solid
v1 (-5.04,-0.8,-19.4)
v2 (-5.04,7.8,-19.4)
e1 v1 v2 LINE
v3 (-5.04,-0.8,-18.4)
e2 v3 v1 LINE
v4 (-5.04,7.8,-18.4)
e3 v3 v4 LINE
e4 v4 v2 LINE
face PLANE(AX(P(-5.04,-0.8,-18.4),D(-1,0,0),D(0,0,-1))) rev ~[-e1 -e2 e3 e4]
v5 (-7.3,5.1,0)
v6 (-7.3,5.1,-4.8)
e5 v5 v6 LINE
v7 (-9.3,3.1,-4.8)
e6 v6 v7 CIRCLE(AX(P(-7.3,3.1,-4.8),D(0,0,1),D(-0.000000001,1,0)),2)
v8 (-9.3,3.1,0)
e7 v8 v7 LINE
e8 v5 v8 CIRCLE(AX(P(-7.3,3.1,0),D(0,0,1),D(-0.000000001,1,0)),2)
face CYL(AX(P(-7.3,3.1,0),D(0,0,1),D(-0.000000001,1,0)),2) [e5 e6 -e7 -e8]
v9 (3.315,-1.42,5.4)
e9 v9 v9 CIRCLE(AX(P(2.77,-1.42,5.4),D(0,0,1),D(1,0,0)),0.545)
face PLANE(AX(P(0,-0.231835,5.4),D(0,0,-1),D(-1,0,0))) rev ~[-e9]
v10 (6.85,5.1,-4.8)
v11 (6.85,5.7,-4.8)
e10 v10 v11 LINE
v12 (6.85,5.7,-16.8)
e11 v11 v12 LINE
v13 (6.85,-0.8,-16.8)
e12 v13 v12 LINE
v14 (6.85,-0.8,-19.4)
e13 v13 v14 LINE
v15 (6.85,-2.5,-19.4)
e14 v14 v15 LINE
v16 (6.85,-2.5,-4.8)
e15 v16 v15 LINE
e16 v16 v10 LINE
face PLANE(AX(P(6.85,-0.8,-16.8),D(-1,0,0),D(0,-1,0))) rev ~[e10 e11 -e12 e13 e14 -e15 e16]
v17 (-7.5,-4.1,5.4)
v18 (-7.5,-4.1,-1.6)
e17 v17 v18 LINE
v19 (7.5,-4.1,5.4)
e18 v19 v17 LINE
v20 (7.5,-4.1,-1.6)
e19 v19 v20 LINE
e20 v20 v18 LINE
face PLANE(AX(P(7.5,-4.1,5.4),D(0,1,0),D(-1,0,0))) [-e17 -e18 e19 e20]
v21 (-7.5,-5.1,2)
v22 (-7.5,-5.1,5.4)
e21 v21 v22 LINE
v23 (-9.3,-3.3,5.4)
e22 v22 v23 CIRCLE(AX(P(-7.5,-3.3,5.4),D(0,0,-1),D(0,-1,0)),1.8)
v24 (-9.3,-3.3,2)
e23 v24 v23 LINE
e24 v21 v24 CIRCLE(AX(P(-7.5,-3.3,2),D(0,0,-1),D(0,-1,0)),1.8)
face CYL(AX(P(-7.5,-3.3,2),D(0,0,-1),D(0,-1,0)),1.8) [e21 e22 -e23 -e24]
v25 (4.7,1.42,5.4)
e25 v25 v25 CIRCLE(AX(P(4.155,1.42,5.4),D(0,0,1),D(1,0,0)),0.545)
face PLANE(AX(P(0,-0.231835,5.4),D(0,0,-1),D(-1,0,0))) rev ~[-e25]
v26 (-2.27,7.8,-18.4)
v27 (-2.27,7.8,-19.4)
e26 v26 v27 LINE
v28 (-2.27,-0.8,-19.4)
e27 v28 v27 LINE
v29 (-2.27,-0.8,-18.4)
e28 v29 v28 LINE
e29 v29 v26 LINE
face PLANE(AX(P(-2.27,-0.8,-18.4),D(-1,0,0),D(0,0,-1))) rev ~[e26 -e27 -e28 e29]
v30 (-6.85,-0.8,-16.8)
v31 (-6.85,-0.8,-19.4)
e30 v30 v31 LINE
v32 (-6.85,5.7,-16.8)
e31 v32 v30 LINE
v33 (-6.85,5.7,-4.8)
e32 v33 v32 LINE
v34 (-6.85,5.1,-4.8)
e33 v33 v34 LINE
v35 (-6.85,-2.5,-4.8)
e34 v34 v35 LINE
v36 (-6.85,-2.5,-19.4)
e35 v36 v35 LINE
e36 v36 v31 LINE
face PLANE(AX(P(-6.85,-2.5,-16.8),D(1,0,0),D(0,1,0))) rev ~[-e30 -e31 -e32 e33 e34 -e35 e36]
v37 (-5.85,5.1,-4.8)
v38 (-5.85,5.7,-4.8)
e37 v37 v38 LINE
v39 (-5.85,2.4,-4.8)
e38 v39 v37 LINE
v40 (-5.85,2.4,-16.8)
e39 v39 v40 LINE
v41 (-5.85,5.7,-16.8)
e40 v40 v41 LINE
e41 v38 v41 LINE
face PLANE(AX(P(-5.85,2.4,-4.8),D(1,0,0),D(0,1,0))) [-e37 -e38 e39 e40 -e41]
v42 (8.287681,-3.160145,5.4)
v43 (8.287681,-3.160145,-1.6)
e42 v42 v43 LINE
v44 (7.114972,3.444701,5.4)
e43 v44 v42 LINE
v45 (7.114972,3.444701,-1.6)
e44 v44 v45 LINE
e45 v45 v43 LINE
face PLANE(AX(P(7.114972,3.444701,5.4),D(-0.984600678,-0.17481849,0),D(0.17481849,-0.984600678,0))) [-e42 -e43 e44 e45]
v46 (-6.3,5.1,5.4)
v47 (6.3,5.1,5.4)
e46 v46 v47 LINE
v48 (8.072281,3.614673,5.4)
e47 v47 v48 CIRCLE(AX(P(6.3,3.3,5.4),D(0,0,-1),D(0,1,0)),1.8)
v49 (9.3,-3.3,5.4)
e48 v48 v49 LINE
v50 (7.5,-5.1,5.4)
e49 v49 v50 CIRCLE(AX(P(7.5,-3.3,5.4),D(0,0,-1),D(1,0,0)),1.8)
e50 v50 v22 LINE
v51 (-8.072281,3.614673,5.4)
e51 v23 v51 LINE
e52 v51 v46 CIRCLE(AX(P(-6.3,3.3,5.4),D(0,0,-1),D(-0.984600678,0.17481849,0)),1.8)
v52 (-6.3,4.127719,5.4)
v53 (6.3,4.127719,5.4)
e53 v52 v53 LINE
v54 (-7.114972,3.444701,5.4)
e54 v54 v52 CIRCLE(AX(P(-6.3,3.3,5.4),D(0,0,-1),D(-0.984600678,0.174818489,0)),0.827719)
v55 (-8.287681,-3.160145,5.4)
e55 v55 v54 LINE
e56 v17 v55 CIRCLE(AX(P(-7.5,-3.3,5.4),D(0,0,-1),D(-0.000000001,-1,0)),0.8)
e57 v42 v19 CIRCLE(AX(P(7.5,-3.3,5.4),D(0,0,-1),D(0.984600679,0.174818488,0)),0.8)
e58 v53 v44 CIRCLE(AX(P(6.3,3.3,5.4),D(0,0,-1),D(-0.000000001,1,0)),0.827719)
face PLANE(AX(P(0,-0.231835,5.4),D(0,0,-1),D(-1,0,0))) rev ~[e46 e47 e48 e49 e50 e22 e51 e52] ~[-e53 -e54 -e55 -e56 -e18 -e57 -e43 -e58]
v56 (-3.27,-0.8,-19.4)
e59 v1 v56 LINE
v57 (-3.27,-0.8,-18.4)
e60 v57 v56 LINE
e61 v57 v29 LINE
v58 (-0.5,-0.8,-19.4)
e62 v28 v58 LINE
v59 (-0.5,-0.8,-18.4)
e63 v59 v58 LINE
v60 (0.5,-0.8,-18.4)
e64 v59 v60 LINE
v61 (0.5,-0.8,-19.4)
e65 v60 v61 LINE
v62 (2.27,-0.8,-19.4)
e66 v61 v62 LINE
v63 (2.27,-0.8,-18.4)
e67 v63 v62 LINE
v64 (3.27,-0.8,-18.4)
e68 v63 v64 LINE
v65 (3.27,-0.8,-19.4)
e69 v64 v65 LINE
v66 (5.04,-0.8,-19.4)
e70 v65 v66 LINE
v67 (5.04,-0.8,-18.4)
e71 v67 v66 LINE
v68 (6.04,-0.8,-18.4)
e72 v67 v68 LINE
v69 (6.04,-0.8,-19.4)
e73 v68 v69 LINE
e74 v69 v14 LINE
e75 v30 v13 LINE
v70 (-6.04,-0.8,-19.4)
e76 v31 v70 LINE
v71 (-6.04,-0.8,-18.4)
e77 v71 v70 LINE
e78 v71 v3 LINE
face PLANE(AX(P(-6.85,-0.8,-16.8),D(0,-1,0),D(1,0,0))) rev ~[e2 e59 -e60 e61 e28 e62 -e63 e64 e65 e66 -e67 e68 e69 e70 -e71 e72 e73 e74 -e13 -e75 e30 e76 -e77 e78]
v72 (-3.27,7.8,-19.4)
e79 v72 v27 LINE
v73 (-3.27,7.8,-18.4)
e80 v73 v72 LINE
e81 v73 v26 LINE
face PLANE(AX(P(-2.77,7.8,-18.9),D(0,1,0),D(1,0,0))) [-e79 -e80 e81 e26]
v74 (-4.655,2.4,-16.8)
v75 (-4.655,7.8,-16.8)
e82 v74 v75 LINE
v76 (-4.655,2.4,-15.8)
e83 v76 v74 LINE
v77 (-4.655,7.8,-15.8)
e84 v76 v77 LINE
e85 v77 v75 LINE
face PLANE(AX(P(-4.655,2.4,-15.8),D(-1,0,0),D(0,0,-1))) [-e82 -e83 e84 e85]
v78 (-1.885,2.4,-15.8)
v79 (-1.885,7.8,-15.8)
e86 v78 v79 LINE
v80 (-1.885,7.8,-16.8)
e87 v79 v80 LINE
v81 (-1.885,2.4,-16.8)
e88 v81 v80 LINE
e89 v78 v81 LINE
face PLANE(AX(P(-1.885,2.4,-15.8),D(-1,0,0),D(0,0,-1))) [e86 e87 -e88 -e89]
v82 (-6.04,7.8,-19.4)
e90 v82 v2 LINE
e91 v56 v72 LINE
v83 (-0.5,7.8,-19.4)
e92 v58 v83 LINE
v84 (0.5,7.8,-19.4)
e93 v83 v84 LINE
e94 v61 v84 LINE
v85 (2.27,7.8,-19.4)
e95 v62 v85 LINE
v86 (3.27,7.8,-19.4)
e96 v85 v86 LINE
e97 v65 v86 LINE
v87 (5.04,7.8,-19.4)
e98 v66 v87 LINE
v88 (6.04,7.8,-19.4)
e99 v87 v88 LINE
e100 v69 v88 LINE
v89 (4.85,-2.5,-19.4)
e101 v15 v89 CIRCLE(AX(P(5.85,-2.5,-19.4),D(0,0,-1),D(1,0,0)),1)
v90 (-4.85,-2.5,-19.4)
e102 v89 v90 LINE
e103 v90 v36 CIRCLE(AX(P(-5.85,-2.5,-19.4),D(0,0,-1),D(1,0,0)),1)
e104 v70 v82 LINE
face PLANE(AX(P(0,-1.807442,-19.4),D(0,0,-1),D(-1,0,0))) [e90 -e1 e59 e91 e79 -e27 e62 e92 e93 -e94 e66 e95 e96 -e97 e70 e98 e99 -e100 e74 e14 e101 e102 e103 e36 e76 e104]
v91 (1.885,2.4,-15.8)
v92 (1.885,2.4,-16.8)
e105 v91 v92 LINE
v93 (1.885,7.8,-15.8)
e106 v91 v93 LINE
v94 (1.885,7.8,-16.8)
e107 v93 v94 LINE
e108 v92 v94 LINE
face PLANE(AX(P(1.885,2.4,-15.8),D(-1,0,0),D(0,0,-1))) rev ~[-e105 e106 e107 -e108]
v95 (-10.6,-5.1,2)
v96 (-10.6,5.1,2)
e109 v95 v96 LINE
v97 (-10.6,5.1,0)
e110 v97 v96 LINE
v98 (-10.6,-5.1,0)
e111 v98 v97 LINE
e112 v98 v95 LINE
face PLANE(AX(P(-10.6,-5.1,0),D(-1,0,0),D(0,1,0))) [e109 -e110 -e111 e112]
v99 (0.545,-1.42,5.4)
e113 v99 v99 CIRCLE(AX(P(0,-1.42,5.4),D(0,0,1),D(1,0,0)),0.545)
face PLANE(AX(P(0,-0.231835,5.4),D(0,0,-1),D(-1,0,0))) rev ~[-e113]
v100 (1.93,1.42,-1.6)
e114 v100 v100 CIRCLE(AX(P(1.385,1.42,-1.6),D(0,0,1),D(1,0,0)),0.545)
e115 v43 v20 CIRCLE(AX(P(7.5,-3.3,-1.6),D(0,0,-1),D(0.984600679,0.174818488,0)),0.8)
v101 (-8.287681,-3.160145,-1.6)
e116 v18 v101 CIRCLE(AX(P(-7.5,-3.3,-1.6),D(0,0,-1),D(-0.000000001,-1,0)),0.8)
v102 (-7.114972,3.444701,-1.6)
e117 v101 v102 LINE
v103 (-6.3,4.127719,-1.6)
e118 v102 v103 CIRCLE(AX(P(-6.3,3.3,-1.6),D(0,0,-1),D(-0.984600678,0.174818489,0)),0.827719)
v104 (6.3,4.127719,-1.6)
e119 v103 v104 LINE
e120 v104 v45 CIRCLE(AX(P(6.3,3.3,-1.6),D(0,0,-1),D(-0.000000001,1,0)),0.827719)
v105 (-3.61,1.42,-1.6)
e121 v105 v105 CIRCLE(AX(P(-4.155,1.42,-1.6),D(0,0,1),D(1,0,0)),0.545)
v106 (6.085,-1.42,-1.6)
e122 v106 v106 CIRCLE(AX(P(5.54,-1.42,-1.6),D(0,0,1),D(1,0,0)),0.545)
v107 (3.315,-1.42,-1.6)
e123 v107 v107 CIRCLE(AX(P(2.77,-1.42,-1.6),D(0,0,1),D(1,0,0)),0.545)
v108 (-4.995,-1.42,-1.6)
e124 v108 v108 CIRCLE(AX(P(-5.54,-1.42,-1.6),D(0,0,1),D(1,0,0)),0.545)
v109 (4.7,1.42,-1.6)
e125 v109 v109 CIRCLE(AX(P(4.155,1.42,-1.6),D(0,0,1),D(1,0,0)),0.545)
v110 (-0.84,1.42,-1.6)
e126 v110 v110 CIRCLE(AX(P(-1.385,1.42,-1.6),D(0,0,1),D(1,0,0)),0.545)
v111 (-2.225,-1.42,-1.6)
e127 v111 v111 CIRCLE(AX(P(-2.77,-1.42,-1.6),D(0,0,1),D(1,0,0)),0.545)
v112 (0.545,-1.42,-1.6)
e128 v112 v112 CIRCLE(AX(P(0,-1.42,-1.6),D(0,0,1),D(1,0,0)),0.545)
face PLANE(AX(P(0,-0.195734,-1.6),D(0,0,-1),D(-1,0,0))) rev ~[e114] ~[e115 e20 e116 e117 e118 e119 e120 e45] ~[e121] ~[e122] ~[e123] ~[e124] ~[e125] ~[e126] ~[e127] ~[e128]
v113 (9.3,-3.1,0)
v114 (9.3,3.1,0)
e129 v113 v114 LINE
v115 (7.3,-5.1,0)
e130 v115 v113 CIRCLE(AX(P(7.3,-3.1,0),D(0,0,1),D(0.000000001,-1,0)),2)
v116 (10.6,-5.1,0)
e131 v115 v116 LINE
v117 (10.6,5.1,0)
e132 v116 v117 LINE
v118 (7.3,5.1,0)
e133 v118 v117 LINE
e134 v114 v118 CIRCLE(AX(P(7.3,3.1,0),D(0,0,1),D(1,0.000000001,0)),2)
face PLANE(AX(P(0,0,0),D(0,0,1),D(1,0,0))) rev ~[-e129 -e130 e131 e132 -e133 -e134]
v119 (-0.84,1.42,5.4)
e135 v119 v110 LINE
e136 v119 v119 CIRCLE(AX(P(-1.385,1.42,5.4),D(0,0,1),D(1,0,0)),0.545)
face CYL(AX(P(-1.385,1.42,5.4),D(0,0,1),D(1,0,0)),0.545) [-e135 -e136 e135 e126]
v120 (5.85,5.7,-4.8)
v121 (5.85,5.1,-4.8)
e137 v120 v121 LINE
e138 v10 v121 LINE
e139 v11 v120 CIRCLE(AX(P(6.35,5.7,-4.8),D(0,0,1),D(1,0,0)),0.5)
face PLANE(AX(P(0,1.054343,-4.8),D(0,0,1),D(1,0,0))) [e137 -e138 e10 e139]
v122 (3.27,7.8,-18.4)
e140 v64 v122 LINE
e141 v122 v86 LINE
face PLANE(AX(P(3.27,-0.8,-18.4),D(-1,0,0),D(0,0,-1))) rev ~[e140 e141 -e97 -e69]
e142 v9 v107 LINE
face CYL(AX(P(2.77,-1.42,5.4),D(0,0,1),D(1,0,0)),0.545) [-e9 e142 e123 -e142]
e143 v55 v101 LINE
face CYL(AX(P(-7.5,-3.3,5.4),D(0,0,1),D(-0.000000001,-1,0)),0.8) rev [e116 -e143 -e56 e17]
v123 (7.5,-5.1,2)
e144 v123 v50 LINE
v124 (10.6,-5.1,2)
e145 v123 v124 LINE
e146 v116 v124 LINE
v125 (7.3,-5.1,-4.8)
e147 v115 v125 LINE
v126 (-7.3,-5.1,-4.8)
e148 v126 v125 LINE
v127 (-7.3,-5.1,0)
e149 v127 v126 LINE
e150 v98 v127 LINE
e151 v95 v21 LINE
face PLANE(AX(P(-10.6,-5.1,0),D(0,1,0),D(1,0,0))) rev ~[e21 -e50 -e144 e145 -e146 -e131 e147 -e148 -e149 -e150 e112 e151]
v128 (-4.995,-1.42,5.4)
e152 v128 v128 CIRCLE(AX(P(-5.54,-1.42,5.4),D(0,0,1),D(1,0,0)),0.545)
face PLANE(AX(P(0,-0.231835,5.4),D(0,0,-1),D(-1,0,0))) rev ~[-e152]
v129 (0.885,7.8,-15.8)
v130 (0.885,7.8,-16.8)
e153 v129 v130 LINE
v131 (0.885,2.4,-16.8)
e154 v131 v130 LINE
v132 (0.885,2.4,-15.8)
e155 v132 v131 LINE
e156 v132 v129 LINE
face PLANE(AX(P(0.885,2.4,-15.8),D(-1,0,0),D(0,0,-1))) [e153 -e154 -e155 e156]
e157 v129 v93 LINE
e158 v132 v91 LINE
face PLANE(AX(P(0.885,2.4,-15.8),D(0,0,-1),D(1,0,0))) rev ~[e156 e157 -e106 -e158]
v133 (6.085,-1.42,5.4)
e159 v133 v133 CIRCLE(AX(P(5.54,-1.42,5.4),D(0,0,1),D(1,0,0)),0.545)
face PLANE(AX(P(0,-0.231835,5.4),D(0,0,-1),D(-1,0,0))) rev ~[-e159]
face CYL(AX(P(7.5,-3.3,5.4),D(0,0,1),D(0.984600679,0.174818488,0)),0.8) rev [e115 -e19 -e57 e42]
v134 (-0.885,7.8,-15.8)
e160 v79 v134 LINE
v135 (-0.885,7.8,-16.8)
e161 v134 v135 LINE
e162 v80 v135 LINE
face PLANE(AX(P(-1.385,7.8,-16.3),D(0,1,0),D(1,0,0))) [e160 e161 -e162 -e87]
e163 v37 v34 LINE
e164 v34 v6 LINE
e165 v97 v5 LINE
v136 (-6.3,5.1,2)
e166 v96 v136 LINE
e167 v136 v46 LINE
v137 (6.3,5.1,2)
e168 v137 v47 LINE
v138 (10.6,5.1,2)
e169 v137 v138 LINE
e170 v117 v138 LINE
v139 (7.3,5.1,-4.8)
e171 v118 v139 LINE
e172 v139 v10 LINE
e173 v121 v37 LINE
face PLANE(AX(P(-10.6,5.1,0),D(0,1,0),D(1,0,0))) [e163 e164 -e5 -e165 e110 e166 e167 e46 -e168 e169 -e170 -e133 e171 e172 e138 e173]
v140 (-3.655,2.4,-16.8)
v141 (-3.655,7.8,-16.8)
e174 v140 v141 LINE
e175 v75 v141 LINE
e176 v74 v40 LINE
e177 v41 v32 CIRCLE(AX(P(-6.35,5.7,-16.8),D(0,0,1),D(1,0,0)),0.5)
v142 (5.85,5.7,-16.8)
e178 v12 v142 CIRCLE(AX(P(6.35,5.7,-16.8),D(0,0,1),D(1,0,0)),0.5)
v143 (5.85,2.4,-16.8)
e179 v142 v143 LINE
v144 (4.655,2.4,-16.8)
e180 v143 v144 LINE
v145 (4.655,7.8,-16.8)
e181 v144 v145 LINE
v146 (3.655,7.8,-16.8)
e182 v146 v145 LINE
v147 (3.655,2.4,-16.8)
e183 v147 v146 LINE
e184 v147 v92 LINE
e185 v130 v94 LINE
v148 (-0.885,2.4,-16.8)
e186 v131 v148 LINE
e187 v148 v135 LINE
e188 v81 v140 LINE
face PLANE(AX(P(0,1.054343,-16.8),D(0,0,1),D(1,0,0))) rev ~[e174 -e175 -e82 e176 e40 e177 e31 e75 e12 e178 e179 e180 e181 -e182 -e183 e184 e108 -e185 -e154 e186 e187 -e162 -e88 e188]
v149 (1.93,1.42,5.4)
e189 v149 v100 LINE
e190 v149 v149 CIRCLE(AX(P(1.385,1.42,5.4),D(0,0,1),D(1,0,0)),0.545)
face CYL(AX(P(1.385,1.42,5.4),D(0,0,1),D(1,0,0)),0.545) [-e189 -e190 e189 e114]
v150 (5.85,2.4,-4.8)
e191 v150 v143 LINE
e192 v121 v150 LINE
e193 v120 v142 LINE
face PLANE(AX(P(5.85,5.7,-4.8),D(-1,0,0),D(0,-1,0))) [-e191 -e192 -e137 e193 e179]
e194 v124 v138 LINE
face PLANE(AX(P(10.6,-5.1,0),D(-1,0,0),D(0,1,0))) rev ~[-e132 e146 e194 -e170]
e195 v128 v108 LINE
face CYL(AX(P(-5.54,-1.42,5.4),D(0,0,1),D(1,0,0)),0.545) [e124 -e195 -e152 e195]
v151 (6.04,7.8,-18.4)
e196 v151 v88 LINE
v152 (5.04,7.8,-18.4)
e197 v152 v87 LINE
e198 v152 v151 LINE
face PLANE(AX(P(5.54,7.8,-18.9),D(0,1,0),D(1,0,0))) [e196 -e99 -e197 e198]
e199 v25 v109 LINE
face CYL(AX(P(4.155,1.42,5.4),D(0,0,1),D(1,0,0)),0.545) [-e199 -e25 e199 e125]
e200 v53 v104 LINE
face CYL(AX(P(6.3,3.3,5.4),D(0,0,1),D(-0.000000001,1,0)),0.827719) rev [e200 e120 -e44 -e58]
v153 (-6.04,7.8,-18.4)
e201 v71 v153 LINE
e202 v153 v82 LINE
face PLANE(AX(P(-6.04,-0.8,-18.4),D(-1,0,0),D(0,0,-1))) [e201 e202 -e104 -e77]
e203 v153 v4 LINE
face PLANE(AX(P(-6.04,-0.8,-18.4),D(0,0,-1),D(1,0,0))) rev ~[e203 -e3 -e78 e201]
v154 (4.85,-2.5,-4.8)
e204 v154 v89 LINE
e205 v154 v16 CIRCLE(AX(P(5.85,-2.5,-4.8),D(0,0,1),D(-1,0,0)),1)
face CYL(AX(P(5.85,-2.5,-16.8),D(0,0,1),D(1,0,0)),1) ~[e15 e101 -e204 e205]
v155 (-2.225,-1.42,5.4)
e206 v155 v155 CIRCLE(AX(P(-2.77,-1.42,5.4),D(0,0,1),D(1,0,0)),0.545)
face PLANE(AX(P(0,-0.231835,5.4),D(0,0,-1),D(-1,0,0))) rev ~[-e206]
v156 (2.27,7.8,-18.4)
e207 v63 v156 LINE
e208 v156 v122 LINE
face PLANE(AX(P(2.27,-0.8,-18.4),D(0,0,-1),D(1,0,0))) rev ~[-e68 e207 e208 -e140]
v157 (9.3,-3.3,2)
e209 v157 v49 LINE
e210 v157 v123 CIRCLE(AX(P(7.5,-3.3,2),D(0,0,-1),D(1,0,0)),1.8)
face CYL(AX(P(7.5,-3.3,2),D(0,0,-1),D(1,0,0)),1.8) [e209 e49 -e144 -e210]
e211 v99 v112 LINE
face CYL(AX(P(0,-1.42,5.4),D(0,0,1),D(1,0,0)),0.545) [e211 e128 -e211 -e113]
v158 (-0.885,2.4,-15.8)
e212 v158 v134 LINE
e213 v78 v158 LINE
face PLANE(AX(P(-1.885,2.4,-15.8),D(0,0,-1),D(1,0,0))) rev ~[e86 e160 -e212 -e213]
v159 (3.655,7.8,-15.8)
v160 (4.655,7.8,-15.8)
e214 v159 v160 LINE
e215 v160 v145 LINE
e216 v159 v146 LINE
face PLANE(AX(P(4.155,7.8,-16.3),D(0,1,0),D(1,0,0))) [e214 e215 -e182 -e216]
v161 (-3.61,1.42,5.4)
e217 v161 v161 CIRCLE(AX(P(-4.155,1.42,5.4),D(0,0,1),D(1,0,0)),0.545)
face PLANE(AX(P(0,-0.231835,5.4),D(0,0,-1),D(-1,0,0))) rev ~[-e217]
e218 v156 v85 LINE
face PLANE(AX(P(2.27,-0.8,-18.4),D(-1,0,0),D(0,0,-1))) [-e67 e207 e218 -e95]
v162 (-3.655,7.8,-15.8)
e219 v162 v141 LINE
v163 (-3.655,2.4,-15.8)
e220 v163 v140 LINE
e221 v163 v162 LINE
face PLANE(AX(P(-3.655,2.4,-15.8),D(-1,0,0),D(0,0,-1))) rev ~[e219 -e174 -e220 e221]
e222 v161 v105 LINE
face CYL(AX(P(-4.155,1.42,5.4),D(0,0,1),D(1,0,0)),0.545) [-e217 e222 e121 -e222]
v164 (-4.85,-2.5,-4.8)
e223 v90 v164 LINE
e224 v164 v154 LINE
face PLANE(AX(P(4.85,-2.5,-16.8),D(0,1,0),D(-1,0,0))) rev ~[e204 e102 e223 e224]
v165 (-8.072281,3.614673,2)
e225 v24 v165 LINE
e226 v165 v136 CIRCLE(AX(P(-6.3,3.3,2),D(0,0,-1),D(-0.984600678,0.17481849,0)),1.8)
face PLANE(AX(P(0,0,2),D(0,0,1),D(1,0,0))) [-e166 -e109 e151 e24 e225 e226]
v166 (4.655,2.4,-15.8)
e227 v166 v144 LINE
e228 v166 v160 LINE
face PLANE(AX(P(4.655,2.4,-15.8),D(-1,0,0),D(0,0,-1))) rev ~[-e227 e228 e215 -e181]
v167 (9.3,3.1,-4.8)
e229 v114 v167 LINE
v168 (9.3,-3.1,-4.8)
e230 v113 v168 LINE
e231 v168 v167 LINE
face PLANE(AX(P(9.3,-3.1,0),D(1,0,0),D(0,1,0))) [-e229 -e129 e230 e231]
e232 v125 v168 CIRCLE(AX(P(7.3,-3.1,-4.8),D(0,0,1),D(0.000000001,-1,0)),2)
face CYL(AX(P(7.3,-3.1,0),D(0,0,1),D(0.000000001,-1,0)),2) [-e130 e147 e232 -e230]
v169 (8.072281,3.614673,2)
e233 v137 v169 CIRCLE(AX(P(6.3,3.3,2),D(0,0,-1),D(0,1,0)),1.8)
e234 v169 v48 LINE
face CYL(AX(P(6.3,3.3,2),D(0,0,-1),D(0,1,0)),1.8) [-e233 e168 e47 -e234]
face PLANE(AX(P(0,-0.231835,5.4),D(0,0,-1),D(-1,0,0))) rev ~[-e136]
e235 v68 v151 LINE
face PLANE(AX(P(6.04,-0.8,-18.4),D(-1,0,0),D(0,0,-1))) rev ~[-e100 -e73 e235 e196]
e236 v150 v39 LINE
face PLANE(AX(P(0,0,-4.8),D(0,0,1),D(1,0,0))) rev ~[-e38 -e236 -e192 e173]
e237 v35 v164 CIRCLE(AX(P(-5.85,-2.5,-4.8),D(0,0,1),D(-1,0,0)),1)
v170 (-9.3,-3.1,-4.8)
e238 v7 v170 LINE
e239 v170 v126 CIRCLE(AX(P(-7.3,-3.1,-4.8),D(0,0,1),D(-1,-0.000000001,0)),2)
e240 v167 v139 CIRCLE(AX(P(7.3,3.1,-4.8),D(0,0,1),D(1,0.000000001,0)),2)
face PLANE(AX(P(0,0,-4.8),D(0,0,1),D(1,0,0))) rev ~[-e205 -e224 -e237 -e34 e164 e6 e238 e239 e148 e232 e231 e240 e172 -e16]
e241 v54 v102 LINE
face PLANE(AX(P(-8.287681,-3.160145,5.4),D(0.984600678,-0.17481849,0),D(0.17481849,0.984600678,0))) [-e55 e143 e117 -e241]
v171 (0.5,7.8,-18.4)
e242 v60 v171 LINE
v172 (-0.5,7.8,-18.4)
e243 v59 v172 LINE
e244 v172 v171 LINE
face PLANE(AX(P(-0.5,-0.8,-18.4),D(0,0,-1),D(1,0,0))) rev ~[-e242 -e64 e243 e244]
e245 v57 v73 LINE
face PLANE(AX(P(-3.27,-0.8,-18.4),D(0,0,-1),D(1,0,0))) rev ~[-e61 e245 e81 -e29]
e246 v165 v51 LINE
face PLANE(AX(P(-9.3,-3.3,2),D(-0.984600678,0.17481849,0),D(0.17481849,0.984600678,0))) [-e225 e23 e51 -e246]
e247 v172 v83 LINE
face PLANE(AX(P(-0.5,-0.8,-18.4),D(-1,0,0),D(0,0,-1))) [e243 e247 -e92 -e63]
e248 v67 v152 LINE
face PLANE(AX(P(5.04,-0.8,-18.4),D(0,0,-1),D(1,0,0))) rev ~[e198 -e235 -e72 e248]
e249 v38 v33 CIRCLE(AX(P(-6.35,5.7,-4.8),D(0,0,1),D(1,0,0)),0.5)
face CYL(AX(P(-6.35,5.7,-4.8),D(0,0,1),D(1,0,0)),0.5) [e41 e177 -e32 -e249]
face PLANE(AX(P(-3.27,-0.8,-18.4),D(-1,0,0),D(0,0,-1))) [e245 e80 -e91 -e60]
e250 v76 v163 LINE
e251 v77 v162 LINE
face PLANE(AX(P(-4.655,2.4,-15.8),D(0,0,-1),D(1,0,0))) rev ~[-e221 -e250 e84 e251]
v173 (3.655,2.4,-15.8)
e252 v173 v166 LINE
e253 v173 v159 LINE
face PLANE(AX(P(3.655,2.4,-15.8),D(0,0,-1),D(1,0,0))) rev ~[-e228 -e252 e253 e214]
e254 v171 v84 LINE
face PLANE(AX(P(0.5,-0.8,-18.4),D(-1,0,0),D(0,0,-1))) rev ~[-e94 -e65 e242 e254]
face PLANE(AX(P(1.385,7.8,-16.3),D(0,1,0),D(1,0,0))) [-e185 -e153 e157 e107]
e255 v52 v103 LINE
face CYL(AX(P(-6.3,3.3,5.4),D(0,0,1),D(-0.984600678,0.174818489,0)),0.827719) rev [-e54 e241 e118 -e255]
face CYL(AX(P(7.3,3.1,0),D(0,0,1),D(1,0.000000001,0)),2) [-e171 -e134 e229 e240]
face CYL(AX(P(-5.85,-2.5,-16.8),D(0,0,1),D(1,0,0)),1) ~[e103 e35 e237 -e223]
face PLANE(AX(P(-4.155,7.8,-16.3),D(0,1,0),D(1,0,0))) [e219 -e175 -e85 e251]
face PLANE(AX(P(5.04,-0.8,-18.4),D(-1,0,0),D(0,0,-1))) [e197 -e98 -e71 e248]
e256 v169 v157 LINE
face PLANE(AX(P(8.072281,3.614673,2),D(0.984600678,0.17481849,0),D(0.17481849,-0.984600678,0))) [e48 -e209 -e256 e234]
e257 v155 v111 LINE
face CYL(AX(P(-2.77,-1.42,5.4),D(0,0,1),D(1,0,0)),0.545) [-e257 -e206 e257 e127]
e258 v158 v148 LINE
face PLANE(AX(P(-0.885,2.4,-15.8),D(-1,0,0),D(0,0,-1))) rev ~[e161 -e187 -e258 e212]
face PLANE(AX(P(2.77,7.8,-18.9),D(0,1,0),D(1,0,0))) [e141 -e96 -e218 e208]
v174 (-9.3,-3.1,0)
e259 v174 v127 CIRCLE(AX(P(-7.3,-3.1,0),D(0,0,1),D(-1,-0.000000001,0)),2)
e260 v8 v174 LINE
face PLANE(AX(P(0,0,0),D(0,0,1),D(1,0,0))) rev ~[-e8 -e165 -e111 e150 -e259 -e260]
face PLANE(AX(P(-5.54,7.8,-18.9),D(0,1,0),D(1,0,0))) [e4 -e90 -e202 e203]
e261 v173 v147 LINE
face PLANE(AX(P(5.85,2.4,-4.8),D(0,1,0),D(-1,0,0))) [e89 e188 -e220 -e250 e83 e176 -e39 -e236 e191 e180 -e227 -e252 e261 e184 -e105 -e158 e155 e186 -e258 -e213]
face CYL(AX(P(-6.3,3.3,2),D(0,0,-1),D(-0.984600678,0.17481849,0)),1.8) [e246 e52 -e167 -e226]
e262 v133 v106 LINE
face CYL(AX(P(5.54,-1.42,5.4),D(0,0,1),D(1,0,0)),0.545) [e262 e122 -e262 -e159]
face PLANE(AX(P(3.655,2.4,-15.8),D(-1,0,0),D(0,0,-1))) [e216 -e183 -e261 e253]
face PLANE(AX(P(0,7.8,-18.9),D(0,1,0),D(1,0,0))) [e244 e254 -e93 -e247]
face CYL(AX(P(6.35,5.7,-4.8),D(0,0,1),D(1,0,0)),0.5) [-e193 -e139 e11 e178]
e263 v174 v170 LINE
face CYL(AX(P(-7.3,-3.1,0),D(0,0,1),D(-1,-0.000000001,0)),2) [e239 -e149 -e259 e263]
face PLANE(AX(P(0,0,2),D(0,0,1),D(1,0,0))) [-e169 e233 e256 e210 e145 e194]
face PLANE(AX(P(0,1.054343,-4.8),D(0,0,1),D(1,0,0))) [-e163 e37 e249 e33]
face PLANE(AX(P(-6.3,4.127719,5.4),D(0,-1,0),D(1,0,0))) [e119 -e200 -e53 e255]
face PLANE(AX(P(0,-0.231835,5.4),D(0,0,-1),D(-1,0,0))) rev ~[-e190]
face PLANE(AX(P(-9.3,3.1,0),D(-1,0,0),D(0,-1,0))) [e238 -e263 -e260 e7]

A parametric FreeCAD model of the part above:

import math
import FreeCAD as App
import Part
import Sketcher


def add_polygon(sketch, points):
    """Adds a closed chain of lines whose ends are joined by coincident constraints."""
    first, n = sketch.GeometryCount, len(points)
    for a, b in zip(points, points[1:] + points[:1]):
        sketch.addGeometry(Part.LineSegment(App.Vector(*a, 0), App.Vector(*b, 0)), False)
    for i in range(n):
        sketch.addConstraint(Sketcher.Constraint("Coincident", first + i, 2, first + (i + 1) % n, 1))

doc = App.newDocument("Part")
params = doc.addObject("Spreadsheet::Sheet", "Params")
for row, (alias, value) in enumerate([
    ("sketch1_width", "21.2 mm"),
    ("sketch1_height", "10.2 mm"),
    ("pad1_length", "2 mm"),
    ("sketch2_radius", "1.8 mm"),
    ("sketch2_width", "15 mm"),
    ("sketch2_width2", "12.6 mm"),
    ("pad2_length", "3.4 mm"),
    ("sketch3_radius", "2 mm"),
    ("sketch3_width", "14.6 mm"),
    ("sketch3_height", "6.2 mm"),
    ("pad3_length", "4.8 mm"),
    ("sketch4_radius", "1 mm"),
    ("sketch4_width", "9.7 mm"),
    ("sketch4_height", "8.2 mm"),
    ("sketch4_height2", "3.3 mm"),
    ("pad4_length", "12 mm"),
    ("sketch5_radius", "1 mm"),
    ("sketch5_width", "13.7 mm"),
    ("sketch5_height", "1.7 mm"),
    ("pad5_length", "2.6 mm"),
    ("sketch6_radius", "0.8 mm"),
    ("sketch6_diameter", "1.09 mm"),
    ("sketch6_width", "15 mm"),
    ("sketch6_width2", "12.6 mm"),
    ("pocket1_length", "7 mm"),
    ("sketch7_width", "1 mm"),
    ("pad6_length", "8.6 mm"),
    ("sketch8_width", "1 mm"),
    ("pad7_length", "5.4 mm"),
], start=1):
    params.set(f"A{row}", alias)
    params.set(f"B{row}", "=" + value)
    params.setAlias(f"B{row}", alias)

body = doc.addObject("PartDesign::Body", "Body")

# Sketch on XY plane
sketch1 = body.newObject("Sketcher::SketchObject", "Sketch")
sketch1.AttachmentSupport = (doc.getObject("XY_Plane"), [""])
sketch1.MapMode = "FlatFace"
add_polygon(sketch1, [(-11, 5), (-11, -5), (11, -5), (11, 5)])  # lines 0-3
sketch1.addConstraint([
    Sketcher.Constraint("Vertical", 0),
    Sketcher.Constraint("Horizontal", 1),
    Sketcher.Constraint("Vertical", 2),
    Sketcher.Constraint("Horizontal", 3),
    Sketcher.Constraint("Symmetric", 0, 2, 2, 2, -1, 1),
    Sketcher.Constraint("DistanceX", 1, 1, 1, 2, 21.2),
    Sketcher.Constraint("DistanceY", 0, 2, 0, 1, 10.2),
])
sketch1.setExpression("Constraints[9]", "Params.sketch1_width")
sketch1.setExpression("Constraints[10]", "Params.sketch1_height")
pad1 = body.newObject("PartDesign::Pad", "Pad")
pad1.Profile = sketch1
pad1.setExpression("Length", "Params.pad1_length")

# Sketch on XY plane
sketch2 = body.newObject("Sketcher::SketchObject", "Sketch001")
sketch2.AttachmentSupport = (doc.getObject("XY_Plane"), [""])
sketch2.MapMode = "FlatFace"
sketch2.AttachmentOffset = App.Placement(App.Vector(0, 0, 2), App.Rotation())
sketch2.addGeometry([
    Part.LineSegment(App.Vector(6.3, 5.1, 0), App.Vector(-6.3, 5.1, 0)),  # 0
    Part.ArcOfCircle(Part.Circle(App.Vector(-6.3, 3.3, 0), App.Vector(0, 0, 1), 1.8), math.radians(90), math.radians(170)),  # 1
    Part.LineSegment(App.Vector(-8.1, 3.6, 0), App.Vector(-9.3, -3.3, 0)),  # 2
    Part.ArcOfCircle(Part.Circle(App.Vector(-7.5, -3.3, 0), App.Vector(0, 0, 1), 1.8), math.radians(180), math.radians(270)),  # 3
    Part.LineSegment(App.Vector(-7.5, -5.1, 0), App.Vector(7.5, -5.1, 0)),  # 4
    Part.ArcOfCircle(Part.Circle(App.Vector(7.5, -3.3, 0), App.Vector(0, 0, 1), 1.8), math.radians(-90), math.radians(0)),  # 5
    Part.LineSegment(App.Vector(9.3, -3.3, 0), App.Vector(8.1, 3.6, 0)),  # 6
    Part.ArcOfCircle(Part.Circle(App.Vector(6.3, 3.3, 0), App.Vector(0, 0, 1), 1.8), math.radians(10), math.radians(90)),  # 7
], False)
sketch2.addConstraint([
    Sketcher.Constraint("Tangent", 0, 2, 1, 1),
    Sketcher.Constraint("Tangent", 1, 2, 2, 1),
    Sketcher.Constraint("Coincident", 2, 2, 3, 1),
    Sketcher.Constraint("Tangent", 3, 2, 4, 1),
    Sketcher.Constraint("Tangent", 4, 2, 5, 1),
    Sketcher.Constraint("Coincident", 5, 2, 6, 1),
    Sketcher.Constraint("Tangent", 6, 2, 7, 1),
    Sketcher.Constraint("Tangent", 7, 2, 0, 1),
    Sketcher.Constraint("Horizontal", 0),
    Sketcher.Constraint("Horizontal", 4),
    Sketcher.Constraint("Equal", 1, 3),
    Sketcher.Constraint("Equal", 3, 5),
    Sketcher.Constraint("Equal", 5, 7),
    Sketcher.Constraint("Symmetric", 2, 2, 5, 2, -2),
    Sketcher.Constraint("Horizontal", 5, 3, 2, 2),
    Sketcher.Constraint("Horizontal", 1, 2, 6, 2),
    Sketcher.Constraint("Radius", 1, 1.8),
    Sketcher.Constraint("DistanceX", 4, 1, 4, 2, 15.0),
    Sketcher.Constraint("DistanceX", 0, 2, 0, 1, 12.6),
    Sketcher.Constraint("DistanceY", -1, 1, 1, 3, 3.3),
    Sketcher.Constraint("DistanceY", 3, 3, -1, 1, 3.3),
])
sketch2.setExpression("Constraints[16]", "Params.sketch2_radius")
sketch2.setExpression("Constraints[17]", "Params.sketch2_width")
sketch2.setExpression("Constraints[18]", "Params.sketch2_width2")
pad2 = body.newObject("PartDesign::Pad", "Pad001")
pad2.Profile = sketch2
pad2.setExpression("Length", "Params.pad2_length")

# Sketch on XY plane
sketch3 = body.newObject("Sketcher::SketchObject", "Sketch002")
sketch3.AttachmentSupport = (doc.getObject("XY_Plane"), [""])
sketch3.MapMode = "FlatFace"
sketch3.addGeometry([
    Part.LineSegment(App.Vector(7.3, -5.1, 0), App.Vector(-7.3, -5.1, 0)),  # 0
    Part.ArcOfCircle(Part.Circle(App.Vector(-7.3, -3.1, 0), App.Vector(0, 0, 1), 2), math.radians(-180), math.radians(-90)),  # 1
    Part.LineSegment(App.Vector(-9.3, -3.1, 0), App.Vector(-9.3, 3.1, 0)),  # 2
    Part.ArcOfCircle(Part.Circle(App.Vector(-7.3, 3.1, 0), App.Vector(0, 0, 1), 2), math.radians(90), math.radians(180)),  # 3
    Part.LineSegment(App.Vector(-7.3, 5.1, 0), App.Vector(7.3, 5.1, 0)),  # 4
    Part.ArcOfCircle(Part.Circle(App.Vector(7.3, 3.1, 0), App.Vector(0, 0, 1), 2), math.radians(0), math.radians(90)),  # 5
    Part.LineSegment(App.Vector(9.3, 3.1, 0), App.Vector(9.3, -3.1, 0)),  # 6
    Part.ArcOfCircle(Part.Circle(App.Vector(7.3, -3.1, 0), App.Vector(0, 0, 1), 2), math.radians(-90), math.radians(0)),  # 7
], False)
sketch3.addConstraint([
    Sketcher.Constraint("Tangent", 0, 2, 1, 2),
    Sketcher.Constraint("Tangent", 1, 1, 2, 1),
    Sketcher.Constraint("Tangent", 2, 2, 3, 2),
    Sketcher.Constraint("Tangent", 3, 1, 4, 1),
    Sketcher.Constraint("Tangent", 4, 2, 5, 2),
    Sketcher.Constraint("Tangent", 5, 1, 6, 1),
    Sketcher.Constraint("Tangent", 6, 2, 7, 2),
    Sketcher.Constraint("Tangent", 7, 1, 0, 1),
    Sketcher.Constraint("Horizontal", 0),
    Sketcher.Constraint("Vertical", 2),
    Sketcher.Constraint("Horizontal", 4),
    Sketcher.Constraint("Vertical", 6),
    Sketcher.Constraint("Equal", 1, 3),
    Sketcher.Constraint("Equal", 3, 5),
    Sketcher.Constraint("Equal", 5, 7),
    Sketcher.Constraint("Symmetric", 1, 3, 5, 3, -1, 1),
    Sketcher.Constraint("Radius", 1, 2.0),
    Sketcher.Constraint("DistanceX", 0, 2, 0, 1, 14.6),
    Sketcher.Constraint("DistanceY", 2, 1, 2, 2, 6.2),
])
sketch3.setExpression("Constraints[16]", "Params.sketch3_radius")
sketch3.setExpression("Constraints[17]", "Params.sketch3_width")
sketch3.setExpression("Constraints[18]", "Params.sketch3_height")
pad3 = body.newObject("PartDesign::Pad", "Pad002")
pad3.Profile = sketch3
pad3.setExpression("Length", "Params.pad3_length")
pad3.Reversed = True

# Sketch on XY plane
sketch4 = body.newObject("Sketcher::SketchObject", "Sketch003")
sketch4.AttachmentSupport = (doc.getObject("XY_Plane"), [""])
sketch4.MapMode = "FlatFace"
sketch4.AttachmentOffset = App.Placement(App.Vector(0, 0, -4.8), App.Rotation())
sketch4.addGeometry([
    Part.LineSegment(App.Vector(4.8, -2.5, 0), App.Vector(-4.8, -2.5, 0)),  # 0
    Part.ArcOfCircle(Part.Circle(App.Vector(-5.8, -2.5, 0), App.Vector(0, 0, 1), 1), math.radians(180), math.radians(360)),  # 1
    Part.LineSegment(App.Vector(-6.8, -2.5, 0), App.Vector(-6.8, 5.7, 0)),  # 2
    Part.ArcOfCircle(Part.Circle(App.Vector(-6.3, 5.7, 0), App.Vector(0, 0, 1), 0.5), math.radians(0), math.radians(180)),  # 3
    Part.LineSegment(App.Vector(-5.8, 5.7, 0), App.Vector(-5.8, 2.4, 0)),  # 4
    Part.LineSegment(App.Vector(-5.8, 2.4, 0), App.Vector(5.8, 2.4, 0)),  # 5
    Part.LineSegment(App.Vector(5.8, 2.4, 0), App.Vector(5.8, 5.7, 0)),  # 6
    Part.ArcOfCircle(Part.Circle(App.Vector(6.3, 5.7, 0), App.Vector(0, 0, 1), 0.5), math.radians(0), math.radians(180)),  # 7
    Part.LineSegment(App.Vector(6.8, 5.7, 0), App.Vector(6.8, -2.5, 0)),  # 8
    Part.ArcOfCircle(Part.Circle(App.Vector(5.8, -2.5, 0), App.Vector(0, 0, 1), 1), math.radians(180), math.radians(360)),  # 9
], False)
sketch4.addConstraint([
    Sketcher.Constraint("Coincident", 0, 2, 1, 2),
    Sketcher.Constraint("Tangent", 1, 1, 2, 1),
    Sketcher.Constraint("Tangent", 2, 2, 3, 2),
    Sketcher.Constraint("Tangent", 3, 1, 4, 1),
    Sketcher.Constraint("Coincident", 4, 2, 5, 1),
    Sketcher.Constraint("Coincident", 5, 2, 6, 1),
    Sketcher.Constraint("Tangent", 6, 2, 7, 2),
    Sketcher.Constraint("Tangent", 7, 1, 8, 1),
    Sketcher.Constraint("Tangent", 8, 2, 9, 2),
    Sketcher.Constraint("Coincident", 9, 1, 0, 1),
    Sketcher.Constraint("Horizontal", 0),
    Sketcher.Constraint("Vertical", 2),
    Sketcher.Constraint("Vertical", 4),
    Sketcher.Constraint("Horizontal", 5),
    Sketcher.Constraint("Vertical", 6),
    Sketcher.Constraint("Vertical", 8),
    Sketcher.Constraint("Equal", 3, 7),
    Sketcher.Constraint("Equal", 1, 9),
    Sketcher.Constraint("Symmetric", 3, 3, 7, 3, -2),
    Sketcher.Constraint("Horizontal", 1, 3, 9, 3),
    Sketcher.Constraint("Horizontal", 9, 3, 0, 2),
    Sketcher.Constraint("Vertical", 1, 3, 3, 1),
    Sketcher.Constraint("Radius", 1, 1.0),
    Sketcher.Constraint("DistanceX", 0, 2, 0, 1, 9.7),
    Sketcher.Constraint("DistanceY", 2, 1, 2, 2, 8.2),
    Sketcher.Constraint("DistanceY", 4, 2, 4, 1, 3.3),
    Sketcher.Constraint("DistanceY", 1, 3, -1, 1, 2.5),
])
sketch4.setExpression("Constraints[22]", "Params.sketch4_radius")
sketch4.setExpression("Constraints[23]", "Params.sketch4_width")
sketch4.setExpression("Constraints[24]", "Params.sketch4_height")
sketch4.setExpression("Constraints[25]", "Params.sketch4_height2")
pad4 = body.newObject("PartDesign::Pad", "Pad003")
pad4.Profile = sketch4
pad4.setExpression("Length", "Params.pad4_length")
pad4.Reversed = True

# Sketch on XY plane
sketch5 = body.newObject("Sketcher::SketchObject", "Sketch004")
sketch5.AttachmentSupport = (doc.getObject("XY_Plane"), [""])
sketch5.MapMode = "FlatFace"
sketch5.AttachmentOffset = App.Placement(App.Vector(0, 0, -16.8), App.Rotation())
sketch5.addGeometry([
    Part.LineSegment(App.Vector(-6.8, -0.8, 0), App.Vector(6.8, -0.8, 0)),  # 0
    Part.LineSegment(App.Vector(6.8, -0.8, 0), App.Vector(6.8, -2.5, 0)),  # 1
    Part.ArcOfCircle(Part.Circle(App.Vector(5.8, -2.5, 0), App.Vector(0, 0, 1), 1), math.radians(180), math.radians(360)),  # 2
    Part.LineSegment(App.Vector(4.8, -2.5, 0), App.Vector(-4.8, -2.5, 0)),  # 3
    Part.ArcOfCircle(Part.Circle(App.Vector(-5.8, -2.5, 0), App.Vector(0, 0, 1), 1), math.radians(180), math.radians(360)),  # 4
    Part.LineSegment(App.Vector(-6.8, -2.5, 0), App.Vector(-6.8, -0.8, 0)),  # 5
], False)
sketch5.addConstraint([
    Sketcher.Constraint("Coincident", 0, 2, 1, 1),
    Sketcher.Constraint("Tangent", 1, 2, 2, 2),
    Sketcher.Constraint("Coincident", 2, 1, 3, 1),
    Sketcher.Constraint("Coincident", 3, 2, 4, 2),
    Sketcher.Constraint("Tangent", 4, 1, 5, 1),
    Sketcher.Constraint("Coincident", 5, 2, 0, 1),
    Sketcher.Constraint("Horizontal", 0),
    Sketcher.Constraint("Vertical", 1),
    Sketcher.Constraint("Horizontal", 3),
    Sketcher.Constraint("Vertical", 5),
    Sketcher.Constraint("Equal", 2, 4),
    Sketcher.Constraint("Symmetric", 2, 3, 4, 3, -2),
    Sketcher.Constraint("Horizontal", 1, 2, 2, 1),
    Sketcher.Constraint("Radius", 2, 1.0),
    Sketcher.Constraint("DistanceX", 0, 1, 0, 2, 13.7),
    Sketcher.Constraint("DistanceY", 1, 2, 1, 1, 1.7),
    Sketcher.Constraint("DistanceY", 2, 3, -1, 1, 2.5),
])
sketch5.setExpression("Constraints[13]", "Params.sketch5_radius")
sketch5.setExpression("Constraints[14]", "Params.sketch5_width")
sketch5.setExpression("Constraints[15]", "Params.sketch5_height")
pad5 = body.newObject("PartDesign::Pad", "Pad004")
pad5.Profile = sketch5
pad5.setExpression("Length", "Params.pad5_length")
pad5.Reversed = True

# Sketch on XY plane
sketch6 = body.newObject("Sketcher::SketchObject", "Sketch005")
sketch6.AttachmentSupport = (doc.getObject("XY_Plane"), [""])
sketch6.MapMode = "FlatFace"
sketch6.AttachmentOffset = App.Placement(App.Vector(0, 0, 5.4), App.Rotation())
sketch6.addGeometry([
    Part.LineSegment(App.Vector(-7.5, -4.1, 0), App.Vector(7.5, -4.1, 0)),  # 0
    Part.ArcOfCircle(Part.Circle(App.Vector(7.5, -3.3, 0), App.Vector(0, 0, 1), 0.8), math.radians(-90), math.radians(10)),  # 1
    Part.LineSegment(App.Vector(8.3, -3.2, 0), App.Vector(7.1, 3.4, 0)),  # 2
    Part.ArcOfCircle(Part.Circle(App.Vector(6.3, 3.3, 0), App.Vector(0, 0, 1), 0.8), math.radians(10), math.radians(90)),  # 3
    Part.LineSegment(App.Vector(6.3, 4.1, 0), App.Vector(-6.3, 4.1, 0)),  # 4
    Part.ArcOfCircle(Part.Circle(App.Vector(-6.3, 3.3, 0), App.Vector(0, 0, 1), 0.8), math.radians(90), math.radians(170)),  # 5
    Part.LineSegment(App.Vector(-7.1, 3.4, 0), App.Vector(-8.3, -3.2, 0)),  # 6
    Part.ArcOfCircle(Part.Circle(App.Vector(-7.5, -3.3, 0), App.Vector(0, 0, 1), 0.8), math.radians(170), math.radians(270)),  # 7
    Part.Circle(App.Vector(5.5, -1.4, 0), App.Vector(0, 0, 1), 0.5),  # 8
    Part.Circle(App.Vector(2.8, -1.4, 0), App.Vector(0, 0, 1), 0.5),  # 9
    Part.Circle(App.Vector(0, -1.4, 0), App.Vector(0, 0, 1), 0.5),  # 10
    Part.Circle(App.Vector(-2.8, -1.4, 0), App.Vector(0, 0, 1), 0.5),  # 11
    Part.Circle(App.Vector(-5.5, -1.4, 0), App.Vector(0, 0, 1), 0.5),  # 12
    Part.Circle(App.Vector(4.2, 1.4, 0), App.Vector(0, 0, 1), 0.5),  # 13
    Part.Circle(App.Vector(1.4, 1.4, 0), App.Vector(0, 0, 1), 0.5),  # 14
    Part.Circle(App.Vector(-1.4, 1.4, 0), App.Vector(0, 0, 1), 0.5),  # 15
    Part.Circle(App.Vector(-4.2, 1.4, 0), App.Vector(0, 0, 1), 0.5),  # 16
], False)
sketch6.addConstraint([
    Sketcher.Constraint("Tangent", 0, 2, 1, 1),
    Sketcher.Constraint("Tangent", 1, 2, 2, 1),
    Sketcher.Constraint("Tangent", 2, 2, 3, 1),
    Sketcher.Constraint("Tangent", 3, 2, 4, 1),
    Sketcher.Constraint("Tangent", 4, 2, 5, 1),
    Sketcher.Constraint("Tangent", 5, 2, 6, 1),
    Sketcher.Constraint("Tangent", 6, 2, 7, 1),
    Sketcher.Constraint("Tangent", 7, 2, 0, 1),
    Sketcher.Constraint("Horizontal", 0),
    Sketcher.Constraint("Horizontal", 4),
    Sketcher.Constraint("Equal", 3, 5),
    Sketcher.Constraint("Equal", 1, 7),
    Sketcher.Constraint("Equal", 8, 9),
    Sketcher.Constraint("Equal", 9, 10),
    Sketcher.Constraint("Equal", 10, 11),
    Sketcher.Constraint("Equal", 11, 12),
    Sketcher.Constraint("Equal", 12, 13),
    Sketcher.Constraint("Equal", 13, 14),
    Sketcher.Constraint("Equal", 14, 15),
    Sketcher.Constraint("Equal", 15, 16),
    Sketcher.Constraint("Symmetric", 9, 3, 11, 3, -2),
    Sketcher.Constraint("Symmetric", 8, 3, 12, 3, -2),
    Sketcher.Constraint("Symmetric", 14, 3, 15, 3, -2),
    Sketcher.Constraint("Symmetric", 13, 3, 16, 3, -2),
    Sketcher.Constraint("Symmetric", 2, 2, 5, 2, -2),
    Sketcher.Constraint("PointOnObject", 10, 3, -2),
    Sketcher.Constraint("Horizontal", 8, 3, 9, 3),
    Sketcher.Constraint("Horizontal", 9, 3, 10, 3),
    Sketcher.Constraint("Horizontal", 13, 3, 14, 3),
    Sketcher.Constraint("Radius", 1, 0.8),
    Sketcher.Constraint("Diameter", 8, 1.09),
    Sketcher.Constraint("DistanceX", 0, 1, 0, 2, 15.0),
    Sketcher.Constraint("DistanceX", 4, 2, 4, 1, 12.6),
    Sketcher.Constraint("DistanceY", 1, 3, -1, 1, 3.3),
    Sketcher.Constraint("DistanceY", -1, 1, 3, 3, 3.3),
    Sketcher.Constraint("DistanceX", -1, 1, 8, 3, 5.54),
    Sketcher.Constraint("DistanceY", 8, 3, -1, 1, 1.42),
    Sketcher.Constraint("DistanceX", -1, 1, 9, 3, 2.77),
    Sketcher.Constraint("DistanceY", -1, 1, 13, 3, 1.42),
    Sketcher.Constraint("Radius", 3, 0.827719),
    Sketcher.Constraint("DistanceX", 14, 3, 13, 3, 2.77),
    Sketcher.Constraint("DistanceX", 15, 3, 14, 3, 2.77),
])
sketch6.setExpression("Constraints[29]", "Params.sketch6_radius")
sketch6.setExpression("Constraints[30]", "Params.sketch6_diameter")
sketch6.setExpression("Constraints[31]", "Params.sketch6_width")
sketch6.setExpression("Constraints[32]", "Params.sketch6_width2")
pocket1 = body.newObject("PartDesign::Pocket", "Pocket")
pocket1.Profile = sketch6
pocket1.setExpression("Length", "Params.pocket1_length")

# Sketch on XZ plane
sketch7 = body.newObject("Sketcher::SketchObject", "Sketch006")
sketch7.AttachmentSupport = (doc.getObject("XZ_Plane"), [""])
sketch7.MapMode = "FlatFace"
sketch7.AttachmentOffset = App.Placement(App.Vector(0, 0, 0.8), App.Rotation())
add_polygon(sketch7, [(-0.5, -19.4), (-0.5, -18.4), (0.5, -18.4), (0.5, -19.4)])  # lines 0-3
add_polygon(sketch7, [(2.3, -19.4), (2.3, -18.4), (3.3, -18.4), (3.3, -19.4)])  # lines 4-7
add_polygon(sketch7, [(5, -19.4), (5, -18.4), (6, -18.4), (6, -19.4)])  # lines 8-11
add_polygon(sketch7, [(-3.3, -19.4), (-3.3, -18.4), (-2.3, -18.4), (-2.3, -19.4)])  # lines 12-15
add_polygon(sketch7, [(-6, -19.4), (-6, -18.4), (-5, -18.4), (-5, -19.4)])  # lines 16-19
sketch7.addConstraint([
    Sketcher.Constraint("Vertical", 0),
    Sketcher.Constraint("Horizontal", 1),
    Sketcher.Constraint("Vertical", 2),
    Sketcher.Constraint("Horizontal", 3),
    Sketcher.Constraint("Vertical", 4),
    Sketcher.Constraint("Horizontal", 5),
    Sketcher.Constraint("Vertical", 6),
    Sketcher.Constraint("Horizontal", 7),
    Sketcher.Constraint("Vertical", 8),
    Sketcher.Constraint("Horizontal", 9),
    Sketcher.Constraint("Vertical", 10),
    Sketcher.Constraint("Horizontal", 11),
    Sketcher.Constraint("Vertical", 12),
    Sketcher.Constraint("Horizontal", 13),
    Sketcher.Constraint("Vertical", 14),
    Sketcher.Constraint("Horizontal", 15),
    Sketcher.Constraint("Vertical", 16),
    Sketcher.Constraint("Horizontal", 17),
    Sketcher.Constraint("Vertical", 18),
    Sketcher.Constraint("Horizontal", 19),
    Sketcher.Constraint("Symmetric", 5, 2, 12, 2, -2),
    Sketcher.Constraint("Symmetric", 7, 2, 14, 2, -2),
    Sketcher.Constraint("Symmetric", 9, 2, 16, 2, -2),
    Sketcher.Constraint("Symmetric", 11, 2, 18, 2, -2),
    Sketcher.Constraint("Horizontal", 1, 2, 4, 2),
    Sketcher.Constraint("Horizontal", 3, 2, 6, 2),
    Sketcher.Constraint("Horizontal", 5, 2, 8, 2),
    Sketcher.Constraint("Horizontal", 7, 2, 10, 2),
    Sketcher.Constraint("Equal", 3, 5),
    Sketcher.Constraint("Equal", 7, 9),
    Sketcher.Constraint("Equal", 19, 0),
    Sketcher.Constraint("DistanceX", 1, 1, 1, 2, 1.0),
    Sketcher.Constraint("DistanceX", 0, 2, -1, 1, 0.5),
    Sketcher.Constraint("DistanceY", 0, 2, -1, 1, 18.4),
    Sketcher.Constraint("DistanceX", -1, 1, 4, 2, 2.27),
    Sketcher.Constraint("DistanceX", -1, 1, 8, 2, 5.04),
])
sketch7.setExpression("Constraints[51]", "Params.sketch7_width")
pad6 = body.newObject("PartDesign::Pad", "Pad005")
pad6.Profile = sketch7
pad6.setExpression("Length", "Params.pad6_length")
pad6.Reversed = True

# Sketch on XZ plane
sketch8 = body.newObject("Sketcher::SketchObject", "Sketch007")
sketch8.AttachmentSupport = (doc.getObject("XZ_Plane"), [""])
sketch8.MapMode = "FlatFace"
sketch8.AttachmentOffset = App.Placement(App.Vector(0, 0, -2.4), App.Rotation())
add_polygon(sketch8, [(-1.9, -16.8), (-1.9, -15.8), (-0.9, -15.8), (-0.9, -16.8)])  # lines 0-3
add_polygon(sketch8, [(0.9, -16.8), (0.9, -15.8), (1.9, -15.8), (1.9, -16.8)])  # lines 4-7
add_polygon(sketch8, [(3.7, -16.8), (3.7, -15.8), (4.7, -15.8), (4.7, -16.8)])  # lines 8-11
add_polygon(sketch8, [(-4.7, -16.8), (-4.7, -15.8), (-3.7, -15.8), (-3.7, -16.8)])  # lines 12-15
sketch8.addConstraint([
    Sketcher.Constraint("Vertical", 0),
    Sketcher.Constraint("Horizontal", 1),
    Sketcher.Constraint("Vertical", 2),
    Sketcher.Constraint("Horizontal", 3),
    Sketcher.Constraint("Vertical", 4),
    Sketcher.Constraint("Horizontal", 5),
    Sketcher.Constraint("Vertical", 6),
    Sketcher.Constraint("Horizontal", 7),
    Sketcher.Constraint("Vertical", 8),
    Sketcher.Constraint("Horizontal", 9),
    Sketcher.Constraint("Vertical", 10),
    Sketcher.Constraint("Horizontal", 11),
    Sketcher.Constraint("Vertical", 12),
    Sketcher.Constraint("Horizontal", 13),
    Sketcher.Constraint("Vertical", 14),
    Sketcher.Constraint("Horizontal", 15),
    Sketcher.Constraint("Symmetric", 1, 2, 4, 2, -2),
    Sketcher.Constraint("Symmetric", 3, 2, 6, 2, -2),
    Sketcher.Constraint("Symmetric", 9, 2, 12, 2, -2),
    Sketcher.Constraint("Symmetric", 11, 2, 14, 2, -2),
    Sketcher.Constraint("Horizontal", 5, 2, 8, 2),
    Sketcher.Constraint("Horizontal", 7, 2, 10, 2),
    Sketcher.Constraint("Equal", 7, 9),
    Sketcher.Constraint("Equal", 15, 0),
    Sketcher.Constraint("DistanceX", 1, 1, 1, 2, 1.0),
    Sketcher.Constraint("DistanceY", 0, 2, -1, 1, 15.8),
    Sketcher.Constraint("DistanceX", 1, 2, 4, 2, 1.77),
    Sketcher.Constraint("DistanceX", 5, 2, 8, 2, 1.77),
])
sketch8.setExpression("Constraints[40]", "Params.sketch8_width")
pad7 = body.newObject("PartDesign::Pad", "Pad006")
pad7.Profile = sketch8
pad7.setExpression("Length", "Params.pad7_length")
pad7.Reversed = True

doc.recompute()
